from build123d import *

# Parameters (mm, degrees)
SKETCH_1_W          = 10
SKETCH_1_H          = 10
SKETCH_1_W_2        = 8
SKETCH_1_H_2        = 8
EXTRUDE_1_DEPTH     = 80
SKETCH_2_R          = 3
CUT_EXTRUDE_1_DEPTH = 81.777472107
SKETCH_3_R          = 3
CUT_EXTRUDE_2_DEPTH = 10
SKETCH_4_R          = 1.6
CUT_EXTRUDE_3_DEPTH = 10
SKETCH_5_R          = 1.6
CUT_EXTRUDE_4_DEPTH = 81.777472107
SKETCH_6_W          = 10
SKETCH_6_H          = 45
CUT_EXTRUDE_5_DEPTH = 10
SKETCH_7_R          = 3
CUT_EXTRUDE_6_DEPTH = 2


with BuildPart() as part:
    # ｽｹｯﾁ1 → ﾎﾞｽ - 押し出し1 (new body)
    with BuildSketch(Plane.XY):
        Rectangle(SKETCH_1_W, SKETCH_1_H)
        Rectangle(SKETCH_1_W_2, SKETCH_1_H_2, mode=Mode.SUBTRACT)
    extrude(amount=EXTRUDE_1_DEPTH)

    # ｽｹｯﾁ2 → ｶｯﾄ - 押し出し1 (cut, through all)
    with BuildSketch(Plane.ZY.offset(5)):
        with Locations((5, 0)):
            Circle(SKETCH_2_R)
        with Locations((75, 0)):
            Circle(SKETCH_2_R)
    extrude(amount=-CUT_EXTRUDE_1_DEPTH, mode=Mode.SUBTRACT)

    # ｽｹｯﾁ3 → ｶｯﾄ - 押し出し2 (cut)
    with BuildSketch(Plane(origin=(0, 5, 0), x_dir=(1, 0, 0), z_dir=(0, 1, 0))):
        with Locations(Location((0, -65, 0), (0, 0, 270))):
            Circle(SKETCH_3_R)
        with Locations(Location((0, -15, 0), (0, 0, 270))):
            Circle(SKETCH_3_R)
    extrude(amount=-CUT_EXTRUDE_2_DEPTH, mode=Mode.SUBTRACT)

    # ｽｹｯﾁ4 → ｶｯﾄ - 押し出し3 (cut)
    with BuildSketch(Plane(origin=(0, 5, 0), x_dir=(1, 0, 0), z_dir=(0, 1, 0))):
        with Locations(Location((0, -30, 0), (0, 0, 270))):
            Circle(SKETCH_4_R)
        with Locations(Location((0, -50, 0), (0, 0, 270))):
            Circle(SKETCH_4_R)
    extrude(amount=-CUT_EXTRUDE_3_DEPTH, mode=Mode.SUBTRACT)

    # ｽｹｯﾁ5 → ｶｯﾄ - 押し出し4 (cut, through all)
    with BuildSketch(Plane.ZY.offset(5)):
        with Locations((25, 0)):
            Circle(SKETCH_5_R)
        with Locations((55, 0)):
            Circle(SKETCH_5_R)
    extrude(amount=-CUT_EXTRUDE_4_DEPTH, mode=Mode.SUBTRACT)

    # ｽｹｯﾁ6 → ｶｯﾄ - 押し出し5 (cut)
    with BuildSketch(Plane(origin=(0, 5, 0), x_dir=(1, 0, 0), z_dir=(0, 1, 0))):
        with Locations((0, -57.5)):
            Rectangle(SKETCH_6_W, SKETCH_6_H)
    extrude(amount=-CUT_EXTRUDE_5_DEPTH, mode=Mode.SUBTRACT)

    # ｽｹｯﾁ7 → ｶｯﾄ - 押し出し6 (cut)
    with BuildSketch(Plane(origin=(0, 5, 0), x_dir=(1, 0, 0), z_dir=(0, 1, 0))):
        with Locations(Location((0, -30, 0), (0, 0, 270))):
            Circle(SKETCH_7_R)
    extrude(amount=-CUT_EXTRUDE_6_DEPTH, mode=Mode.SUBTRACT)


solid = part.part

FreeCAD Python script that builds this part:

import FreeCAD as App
import Part
import Sketcher
from FreeCAD import Vector
Q = App.Units.Quantity

doc = App.newDocument("Part")
params = doc.addObject("Spreadsheet::Sheet", "Params")
for row, (alias, value) in enumerate([
    ("sketch1_width", "10 mm"),
    ("sketch1_width2", "8 mm"),
    ("pad1_length", "80 mm"),
    ("sketch2_diameter", "6 mm"),
    ("sketch3_diameter", "6 mm"),
    ("pocket2_length", "10 mm"),
    ("sketch4_diameter", "3.2 mm"),
    ("pocket3_length", "10 mm"),
    ("sketch5_diameter", "3.2 mm"),
    ("sketch6_width", "10 mm"),
    ("sketch6_height", "45 mm"),
    ("pocket5_length", "10 mm"),
    ("sketch7_diameter", "6 mm"),
    ("pocket6_length", "2 mm"),
], start=1):
    params.set(f"A{row}", alias)
    params.set(f"B{row}", "=" + value)
    params.setAlias(f"B{row}", alias)

body = doc.addObject("PartDesign::Body", "Body")

sketch1 = doc.addObject("Sketcher::SketchObject", "Sketch")
body.addObject(sketch1)
sketch1.AttachmentSupport = (doc.XY_Plane, [""])
sketch1.MapMode = "FlatFace"
sketch1.addGeometry([
    Part.LineSegment(Vector(-5, 5, 0), Vector(-5, -5, 0)),
    Part.LineSegment(Vector(-5, -5, 0), Vector(5, -5, 0)),
    Part.LineSegment(Vector(5, -5, 0), Vector(5, 5, 0)),
    Part.LineSegment(Vector(5, 5, 0), Vector(-5, 5, 0)),
    Part.LineSegment(Vector(4, -4, 0), Vector(-4, -4, 0)),
    Part.LineSegment(Vector(-4, -4, 0), Vector(-4, 4, 0)),
    Part.LineSegment(Vector(-4, 4, 0), Vector(4, 4, 0)),
    Part.LineSegment(Vector(4, 4, 0), Vector(4, -4, 0)),
], False)
sketch1.addConstraint([
    Sketcher.Constraint("Coincident", 0, 2, 1, 1),
    Sketcher.Constraint("Coincident", 1, 2, 2, 1),
    Sketcher.Constraint("Coincident", 2, 2, 3, 1),
    Sketcher.Constraint("Coincident", 3, 2, 0, 1),
    Sketcher.Constraint("Coincident", 4, 2, 5, 1),
    Sketcher.Constraint("Coincident", 5, 2, 6, 1),
    Sketcher.Constraint("Coincident", 6, 2, 7, 1),
    Sketcher.Constraint("Coincident", 7, 2, 4, 1),
    Sketcher.Constraint("Vertical", 0),
    Sketcher.Constraint("Horizontal", 1),
    Sketcher.Constraint("Vertical", 2),
    Sketcher.Constraint("Horizontal", 3),
    Sketcher.Constraint("Horizontal", 4),
    Sketcher.Constraint("Vertical", 5),
    Sketcher.Constraint("Horizontal", 6),
    Sketcher.Constraint("Vertical", 7),
    Sketcher.Constraint("Symmetric", 0, 2, 2, 2, -1, 1),
    Sketcher.Constraint("Symmetric", 4, 2, 6, 2, -1, 1),
    Sketcher.Constraint("Equal", 3, 0),
    Sketcher.Constraint("Equal", 6, 5),
    Sketcher.Constraint("DistanceX", 1, 1, 1, 2, Q("10 mm")),
    Sketcher.Constraint("DistanceX", 4, 2, 4, 1, Q("8 mm")),
])
sketch1.setExpression("Constraints[20]", "Params.sketch1_width")
sketch1.setExpression("Constraints[21]", "Params.sketch1_width2")
pad1 = doc.addObject("PartDesign::Pad", "Pad")
body.addObject(pad1)
pad1.Profile = sketch1
pad1.setExpression("Length", "Params.pad1_length")

sketch2 = doc.addObject("Sketcher::SketchObject", "Sketch001")
body.addObject(sketch2)
sketch2.AttachmentSupport = (doc.YZ_Plane, [""])
sketch2.MapMode = "FlatFace"
sketch2.AttachmentOffset = App.Placement(Vector(0, 0, -5), App.Rotation())
sketch2.addGeometry([
    Part.Circle(Vector(0, 5, 0), Vector(0, 0, 1), 3),
    Part.Circle(Vector(0, 75, 0), Vector(0, 0, 1), 3),
], False)
sketch2.addConstraint([
    Sketcher.Constraint("Equal", 0, 1),
    Sketcher.Constraint("PointOnObject", 0, 3, -2),
    Sketcher.Constraint("PointOnObject", 1, 3, -2),
    Sketcher.Constraint("Diameter", 0, Q("6 mm")),
    Sketcher.Constraint("DistanceY", -1, 1, 0, 3, Q("5 mm")),
    Sketcher.Constraint("DistanceY", -1, 1, 1, 3, Q("75 mm")),
])
sketch2.setExpression("Constraints[3]", "Params.sketch2_diameter")
pocket1 = doc.addObject("PartDesign::Pocket", "Pocket")
body.addObject(pocket1)
pocket1.Profile = sketch2
pocket1.Type = "ThroughAll"
pocket1.Reversed = True

sketch3 = doc.addObject("Sketcher::SketchObject", "Sketch002")
body.addObject(sketch3)
sketch3.AttachmentSupport = (doc.XZ_Plane, [""])
sketch3.MapMode = "FlatFace"
sketch3.AttachmentOffset = App.Placement(Vector(0, 0, -5), App.Rotation())
sketch3.addGeometry([
    Part.Circle(Vector(0, 65, 0), Vector(0, 0, 1), 3),
    Part.Circle(Vector(0, 15, 0), Vector(0, 0, 1), 3),
], False)
sketch3.addConstraint([
    Sketcher.Constraint("Equal", 0, 1),
    Sketcher.Constraint("PointOnObject", 0, 3, -2),
    Sketcher.Constraint("PointOnObject", 1, 3, -2),
    Sketcher.Constraint("Diameter", 0, Q("6 mm")),
    Sketcher.Constraint("DistanceY", -1, 1, 0, 3, Q("65 mm")),
    Sketcher.Constraint("DistanceY", -1, 1, 1, 3, Q("15 mm")),
])
sketch3.setExpression("Constraints[3]", "Params.sketch3_diameter")
pocket2 = doc.addObject("PartDesign::Pocket", "Pocket001")
body.addObject(pocket2)
pocket2.Profile = sketch3
pocket2.setExpression("Length", "Params.pocket2_length")
pocket2.Reversed = True

sketch4 = doc.addObject("Sketcher::SketchObject", "Sketch003")
body.addObject(sketch4)
sketch4.AttachmentSupport = (doc.XZ_Plane, [""])
sketch4.MapMode = "FlatFace"
sketch4.AttachmentOffset = App.Placement(Vector(0, 0, -5), App.Rotation())
sketch4.addGeometry([
    Part.Circle(Vector(0, 30, 0), Vector(0, 0, 1), 1.6),
    Part.Circle(Vector(0, 50, 0), Vector(0, 0, 1), 1.6),
], False)
sketch4.addConstraint([
    Sketcher.Constraint("Equal", 0, 1),
    Sketcher.Constraint("PointOnObject", 0, 3, -2),
    Sketcher.Constraint("PointOnObject", 1, 3, -2),
    Sketcher.Constraint("Diameter", 0, Q("3.2 mm")),
    Sketcher.Constraint("DistanceY", -1, 1, 0, 3, Q("30 mm")),
    Sketcher.Constraint("DistanceY", -1, 1, 1, 3, Q("50 mm")),
])
sketch4.setExpression("Constraints[3]", "Params.sketch4_diameter")
pocket3 = doc.addObject("PartDesign::Pocket", "Pocket002")
body.addObject(pocket3)
pocket3.Profile = sketch4
pocket3.setExpression("Length", "Params.pocket3_length")
pocket3.Reversed = True

sketch5 = doc.addObject("Sketcher::SketchObject", "Sketch004")
body.addObject(sketch5)
sketch5.AttachmentSupport = (doc.YZ_Plane, [""])
sketch5.MapMode = "FlatFace"
sketch5.AttachmentOffset = App.Placement(Vector(0, 0, -5), App.Rotation())
sketch5.addGeometry([
    Part.Circle(Vector(0, 25, 0), Vector(0, 0, 1), 1.6),
    Part.Circle(Vector(0, 55, 0), Vector(0, 0, 1), 1.6),
], False)
sketch5.addConstraint([
    Sketcher.Constraint("Equal", 0, 1),
    Sketcher.Constraint("PointOnObject", 0, 3, -2),
    Sketcher.Constraint("PointOnObject", 1, 3, -2),
    Sketcher.Constraint("Diameter", 0, Q("3.2 mm")),
    Sketcher.Constraint("DistanceY", -1, 1, 0, 3, Q("25 mm")),
    Sketcher.Constraint("DistanceY", -1, 1, 1, 3, Q("55 mm")),
])
sketch5.setExpression("Constraints[3]", "Params.sketch5_diameter")
pocket4 = doc.addObject("PartDesign::Pocket", "Pocket003")
body.addObject(pocket4)
pocket4.Profile = sketch5
pocket4.Type = "ThroughAll"
pocket4.Reversed = True

sketch6 = doc.addObject("Sketcher::SketchObject", "Sketch005")
body.addObject(sketch6)
sketch6.AttachmentSupport = (doc.XZ_Plane, [""])
sketch6.MapMode = "FlatFace"
sketch6.AttachmentOffset = App.Placement(Vector(0, 0, -5), App.Rotation())
sketch6.addGeometry([
    Part.LineSegment(Vector(-5, 35, 0), Vector(-5, 80, 0)),
    Part.LineSegment(Vector(-5, 80, 0), Vector(5, 80, 0)),
    Part.LineSegment(Vector(5, 80, 0), Vector(5, 35, 0)),
    Part.LineSegment(Vector(5, 35, 0), Vector(-5, 35, 0)),
], False)
sketch6.addConstraint([
    Sketcher.Constraint("Coincident", 0, 2, 1, 1),
    Sketcher.Constraint("Coincident", 1, 2, 2, 1),
    Sketcher.Constraint("Coincident", 2, 2, 3, 1),
    Sketcher.Constraint("Coincident", 3, 2, 0, 1),
    Sketcher.Constraint("Vertical", 0),
    Sketcher.Constraint("Horizontal", 1),
    Sketcher.Constraint("Vertical", 2),
    Sketcher.Constraint("Horizontal", 3),
    Sketcher.Constraint("DistanceX", 1, 1, 1, 2, Q("10 mm")),
    Sketcher.Constraint("DistanceY", 0, 1, 0, 2, Q("45 mm")),
    Sketcher.Constraint("DistanceX", 0, 2, -1, 1, Q("5 mm")),
    Sketcher.Constraint("DistanceY", -1, 1, 0, 2, Q("80 mm")),
])
sketch6.setExpression("Constraints[8]", "Params.sketch6_width")
sketch6.setExpression("Constraints[9]", "Params.sketch6_height")
pocket5 = doc.addObject("PartDesign::Pocket", "Pocket004")
body.addObject(pocket5)
pocket5.Profile = sketch6
pocket5.setExpression("Length", "Params.pocket5_length")
pocket5.Reversed = True

sketch7 = doc.addObject("Sketcher::SketchObject", "Sketch006")
body.addObject(sketch7)
sketch7.AttachmentSupport = (doc.XZ_Plane, [""])
sketch7.MapMode = "FlatFace"
sketch7.AttachmentOffset = App.Placement(Vector(0, 0, -5), App.Rotation())
sketch7.addGeometry(Part.Circle(Vector(0, 30, 0), Vector(0, 0, 1), 3), False)
sketch7.addConstraint([
    Sketcher.Constraint("PointOnObject", 0, 3, -2),
    Sketcher.Constraint("Diameter", 0, Q("6 mm")),
    Sketcher.Constraint("DistanceY", -1, 1, 0, 3, Q("30 mm")),
])
sketch7.setExpression("Constraints[1]", "Params.sketch7_diameter")
pocket6 = doc.addObject("PartDesign::Pocket", "Pocket005")
body.addObject(pocket6)
pocket6.Profile = sketch7
pocket6.setExpression("Length", "Params.pocket6_length")
pocket6.Reversed = True

doc.recompute()
